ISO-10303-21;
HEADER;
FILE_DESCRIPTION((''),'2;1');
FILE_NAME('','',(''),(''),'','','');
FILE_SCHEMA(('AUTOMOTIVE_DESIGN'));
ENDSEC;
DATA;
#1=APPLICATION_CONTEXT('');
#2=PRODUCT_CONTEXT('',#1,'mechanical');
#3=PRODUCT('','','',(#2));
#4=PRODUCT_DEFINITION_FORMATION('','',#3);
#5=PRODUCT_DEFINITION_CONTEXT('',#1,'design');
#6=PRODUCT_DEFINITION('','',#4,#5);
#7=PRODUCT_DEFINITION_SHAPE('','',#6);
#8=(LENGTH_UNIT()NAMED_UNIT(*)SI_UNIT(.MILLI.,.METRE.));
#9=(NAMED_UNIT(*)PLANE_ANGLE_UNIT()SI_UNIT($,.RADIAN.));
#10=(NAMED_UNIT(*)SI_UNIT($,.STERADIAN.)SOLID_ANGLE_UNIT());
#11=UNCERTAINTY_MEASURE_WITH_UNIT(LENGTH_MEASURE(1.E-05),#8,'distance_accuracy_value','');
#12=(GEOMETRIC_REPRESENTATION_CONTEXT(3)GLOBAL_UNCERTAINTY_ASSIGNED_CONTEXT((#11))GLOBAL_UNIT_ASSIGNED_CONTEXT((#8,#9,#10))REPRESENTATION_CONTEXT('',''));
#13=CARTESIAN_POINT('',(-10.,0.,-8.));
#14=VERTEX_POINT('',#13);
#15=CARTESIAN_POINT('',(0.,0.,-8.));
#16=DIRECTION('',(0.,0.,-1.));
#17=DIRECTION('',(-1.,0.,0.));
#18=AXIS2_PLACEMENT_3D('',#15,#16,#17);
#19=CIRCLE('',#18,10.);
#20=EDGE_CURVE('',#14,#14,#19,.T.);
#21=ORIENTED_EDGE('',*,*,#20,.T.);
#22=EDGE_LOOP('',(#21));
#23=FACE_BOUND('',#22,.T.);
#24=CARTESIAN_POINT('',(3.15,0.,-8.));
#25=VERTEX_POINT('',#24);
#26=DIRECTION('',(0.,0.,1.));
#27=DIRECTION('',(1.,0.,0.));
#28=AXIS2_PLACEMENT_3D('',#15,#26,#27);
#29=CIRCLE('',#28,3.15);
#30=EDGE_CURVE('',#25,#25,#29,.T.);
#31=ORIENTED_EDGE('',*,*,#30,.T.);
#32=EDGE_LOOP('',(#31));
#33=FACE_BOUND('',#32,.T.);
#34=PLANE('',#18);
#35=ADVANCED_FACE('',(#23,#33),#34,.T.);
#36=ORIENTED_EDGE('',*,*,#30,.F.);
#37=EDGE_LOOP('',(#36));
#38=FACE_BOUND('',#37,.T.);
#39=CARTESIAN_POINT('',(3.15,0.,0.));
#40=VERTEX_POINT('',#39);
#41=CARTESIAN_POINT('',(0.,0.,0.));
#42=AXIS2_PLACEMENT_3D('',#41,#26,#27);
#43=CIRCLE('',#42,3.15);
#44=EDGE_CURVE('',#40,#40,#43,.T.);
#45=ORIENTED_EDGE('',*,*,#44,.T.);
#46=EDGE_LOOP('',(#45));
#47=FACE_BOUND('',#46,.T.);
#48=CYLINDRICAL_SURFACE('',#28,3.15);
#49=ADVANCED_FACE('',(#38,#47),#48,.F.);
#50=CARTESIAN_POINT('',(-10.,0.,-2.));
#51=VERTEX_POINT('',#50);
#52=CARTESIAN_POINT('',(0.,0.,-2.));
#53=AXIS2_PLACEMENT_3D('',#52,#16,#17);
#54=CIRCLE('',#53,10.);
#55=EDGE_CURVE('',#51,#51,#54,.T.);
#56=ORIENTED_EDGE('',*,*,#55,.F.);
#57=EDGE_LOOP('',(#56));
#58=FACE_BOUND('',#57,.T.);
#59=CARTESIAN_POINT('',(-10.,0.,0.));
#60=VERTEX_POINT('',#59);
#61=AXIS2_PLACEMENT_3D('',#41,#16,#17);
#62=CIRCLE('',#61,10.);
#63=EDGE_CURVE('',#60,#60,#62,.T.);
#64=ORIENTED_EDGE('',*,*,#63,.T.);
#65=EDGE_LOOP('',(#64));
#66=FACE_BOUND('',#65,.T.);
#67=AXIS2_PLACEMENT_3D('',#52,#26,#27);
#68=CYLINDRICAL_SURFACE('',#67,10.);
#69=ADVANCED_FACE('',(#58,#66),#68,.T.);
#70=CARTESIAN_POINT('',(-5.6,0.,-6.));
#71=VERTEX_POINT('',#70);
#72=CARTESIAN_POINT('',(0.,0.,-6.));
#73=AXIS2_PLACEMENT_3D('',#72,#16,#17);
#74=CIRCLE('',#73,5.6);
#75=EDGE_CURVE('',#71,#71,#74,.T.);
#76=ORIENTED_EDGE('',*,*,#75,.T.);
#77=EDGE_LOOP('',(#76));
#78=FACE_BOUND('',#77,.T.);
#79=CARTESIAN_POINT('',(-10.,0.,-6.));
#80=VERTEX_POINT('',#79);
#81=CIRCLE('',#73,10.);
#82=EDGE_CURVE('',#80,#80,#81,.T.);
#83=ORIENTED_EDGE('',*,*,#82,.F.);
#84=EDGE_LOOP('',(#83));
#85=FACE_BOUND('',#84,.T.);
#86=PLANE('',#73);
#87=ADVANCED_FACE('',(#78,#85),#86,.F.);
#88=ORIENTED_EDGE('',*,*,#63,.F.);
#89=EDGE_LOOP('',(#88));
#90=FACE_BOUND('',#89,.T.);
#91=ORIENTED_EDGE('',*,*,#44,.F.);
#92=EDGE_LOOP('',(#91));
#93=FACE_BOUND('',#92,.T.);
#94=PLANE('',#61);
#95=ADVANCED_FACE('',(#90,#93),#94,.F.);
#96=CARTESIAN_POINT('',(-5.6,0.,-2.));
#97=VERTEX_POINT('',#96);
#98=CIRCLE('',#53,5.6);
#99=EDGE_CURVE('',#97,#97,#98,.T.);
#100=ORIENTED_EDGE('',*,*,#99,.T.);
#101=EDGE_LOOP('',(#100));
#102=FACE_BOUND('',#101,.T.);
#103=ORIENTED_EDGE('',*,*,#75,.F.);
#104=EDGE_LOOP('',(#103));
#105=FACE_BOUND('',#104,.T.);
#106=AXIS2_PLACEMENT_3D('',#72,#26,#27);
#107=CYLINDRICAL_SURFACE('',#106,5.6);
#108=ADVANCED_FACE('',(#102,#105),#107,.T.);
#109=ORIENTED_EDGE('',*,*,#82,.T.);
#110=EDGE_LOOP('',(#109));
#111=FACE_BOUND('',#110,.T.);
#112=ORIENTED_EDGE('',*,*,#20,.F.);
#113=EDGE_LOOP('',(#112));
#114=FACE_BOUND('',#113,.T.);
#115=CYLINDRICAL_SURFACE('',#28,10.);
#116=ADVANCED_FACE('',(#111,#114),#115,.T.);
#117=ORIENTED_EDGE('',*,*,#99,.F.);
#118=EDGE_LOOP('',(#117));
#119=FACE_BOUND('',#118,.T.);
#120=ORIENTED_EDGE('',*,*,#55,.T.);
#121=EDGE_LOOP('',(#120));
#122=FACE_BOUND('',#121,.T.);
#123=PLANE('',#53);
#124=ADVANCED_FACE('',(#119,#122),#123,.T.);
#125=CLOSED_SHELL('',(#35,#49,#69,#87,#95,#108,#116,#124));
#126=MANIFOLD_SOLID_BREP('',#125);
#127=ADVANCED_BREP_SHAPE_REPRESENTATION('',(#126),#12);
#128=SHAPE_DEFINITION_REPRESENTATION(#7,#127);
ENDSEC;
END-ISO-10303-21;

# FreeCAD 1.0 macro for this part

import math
import FreeCAD as App
import Part
import Sketcher
from FreeCAD import Vector
Q = App.Units.Quantity

doc = App.newDocument("Part")
body = doc.addObject("PartDesign::Body", "Body")

# Sketch on XY plane
sketch1 = doc.addObject("Sketcher::SketchObject", "Sketch")
body.addObject(sketch1)
sketch1.AttachmentSupport = (doc.XY_Plane, [""])
sketch1.MapMode = "FlatFace"
sketch1.addGeometry(Part.LineSegment(Vector(-5, 0, 0), Vector(-5, -8, 0)), False)
sketch1.addGeometry(Part.LineSegment(Vector(-5, -8, 0), Vector(5, -8, 0)), False)
sketch1.addGeometry(Part.LineSegment(Vector(5, -8, 0), Vector(5, 0, 0)), False)
sketch1.addGeometry(Part.ArcOfCircle(Part.Circle(Vector(0, 0, 0), Vector(0, 0, 1), 5), math.radians(0), math.radians(180)), False)
sketch1.addGeometry(Part.LineSegment(Vector(3.5, -6.3, 0), Vector(-3.5, -6.3, 0)), False)
sketch1.addGeometry(Part.LineSegment(Vector(-3.5, -6.3, 0), Vector(-3.5, -2.3, 0)), False)
sketch1.addGeometry(Part.LineSegment(Vector(-3.5, -2.3, 0), Vector(-1.9, -2.3, 0)), False)
sketch1.addGeometry(Part.ArcOfCircle(Part.Circle(Vector(0, 0, 0), Vector(0, 0, 1), 3), math.radians(0), math.radians(230)), False)
sketch1.addGeometry(Part.ArcOfCircle(Part.Circle(Vector(0, 0, 0), Vector(0, 0, 1), 3), math.radians(-50), math.radians(0)), False)
sketch1.addGeometry(Part.LineSegment(Vector(1.9, -2.3, 0), Vector(3.5, -2.3, 0)), False)
sketch1.addGeometry(Part.LineSegment(Vector(3.5, -2.3, 0), Vector(3.5, -6.3, 0)), False)
sketch1.addConstraint(Sketcher.Constraint("Coincident", 0, 2, 1, 1))
sketch1.addConstraint(Sketcher.Constraint("Coincident", 1, 2, 2, 1))
sketch1.addConstraint(Sketcher.Constraint("Tangent", 2, 2, 3, 1))
sketch1.addConstraint(Sketcher.Constraint("Tangent", 3, 2, 0, 1))
sketch1.addConstraint(Sketcher.Constraint("Coincident", 4, 2, 5, 1))
sketch1.addConstraint(Sketcher.Constraint("Coincident", 5, 2, 6, 1))
sketch1.addConstraint(Sketcher.Constraint("Coincident", 6, 2, 7, 2))
sketch1.addConstraint(Sketcher.Constraint("Tangent", 7, 1, 8, 2))
sketch1.addConstraint(Sketcher.Constraint("Coincident", 8, 1, 9, 1))
sketch1.addConstraint(Sketcher.Constraint("Coincident", 9, 2, 10, 1))
sketch1.addConstraint(Sketcher.Constraint("Coincident", 10, 2, 4, 1))
sketch1.addConstraint(Sketcher.Constraint("Vertical", 0))
sketch1.addConstraint(Sketcher.Constraint("Horizontal", 1))
sketch1.addConstraint(Sketcher.Constraint("Vertical", 2))
sketch1.addConstraint(Sketcher.Constraint("Horizontal", 4))
sketch1.addConstraint(Sketcher.Constraint("Vertical", 5))
sketch1.addConstraint(Sketcher.Constraint("Horizontal", 6))
sketch1.addConstraint(Sketcher.Constraint("Horizontal", 9))
sketch1.addConstraint(Sketcher.Constraint("Vertical", 10))
sketch1.addConstraint(Sketcher.Constraint("Coincident", 3, 3, -1, 1))
sketch1.addConstraint(Sketcher.Constraint("Coincident", 7, 3, -1, 1))
sketch1.addConstraint(Sketcher.Constraint("Equal", 7, 8))
sketch1.addConstraint(Sketcher.Constraint("Symmetric", 5, 2, 9, 2, -2))
sketch1.addConstraint(Sketcher.Constraint("PointOnObject", 7, 1, -1))
sketch1.addConstraint(Sketcher.Constraint("Radius", 3, Q("5 mm")))
sketch1.addConstraint(Sketcher.Constraint("Radius", 7, Q("3 mm")))
sketch1.addConstraint(Sketcher.Constraint("DistanceX", 4, 2, 4, 1, Q("7 mm")))
sketch1.addConstraint(Sketcher.Constraint("DistanceY", 0, 2, 0, 1, Q("8 mm")))
sketch1.addConstraint(Sketcher.Constraint("DistanceY", 5, 1, 5, 2, Q("4 mm")))
sketch1.addConstraint(Sketcher.Constraint("DistanceY", 4, 2, -1, 1, Q("6.3 mm")))
pad1 = doc.addObject("PartDesign::Pad", "Pad")
body.addObject(pad1)
pad1.Profile = sketch1
pad1.Length = 7

# Sketch on XZ plane
sketch2 = doc.addObject("Sketcher::SketchObject", "Sketch001")
body.addObject(sketch2)
sketch2.AttachmentSupport = (doc.XZ_Plane, [""])
sketch2.MapMode = "FlatFace"
sketch2.AttachmentOffset = App.Placement(Vector(0, 0, 8), App.Rotation())
sketch2.addGeometry(Part.Circle(Vector(0, 4, 0), Vector(0, 0, 1), 1.4), False)
sketch2.addConstraint(Sketcher.Constraint("PointOnObject", 0, 3, -2))
sketch2.addConstraint(Sketcher.Constraint("Diameter", 0, Q("2.7 mm")))
sketch2.addConstraint(Sketcher.Constraint("DistanceY", -1, 1, 0, 3, Q("4 mm")))
pocket1 = doc.addObject("PartDesign::Pocket", "Pocket")
body.addObject(pocket1)
pocket1.Profile = sketch2
pocket1.Length = 1.7

# Sketch on XY plane
sketch3 = doc.addObject("Sketcher::SketchObject", "Sketch002")
body.addObject(sketch3)
sketch3.AttachmentSupport = (doc.XY_Plane, [""])
sketch3.MapMode = "FlatFace"
sketch3.addGeometry(Part.Circle(Vector(0, 0, 0), Vector(0, 0, 1), 10), False)
sketch3.addConstraint(Sketcher.Constraint("Coincident", 0, 3, -1, 1))
sketch3.addConstraint(Sketcher.Constraint("Diameter", 0, Q("20 mm")))
pad2 = doc.addObject("PartDesign::Pad", "Pad001")
body.addObject(pad2)
pad2.Profile = sketch3
pad2.Length = 2
pad2.Reversed = True

# Sketch on XY plane
sketch4 = doc.addObject("Sketcher::SketchObject", "Sketch003")
body.addObject(sketch4)
sketch4.AttachmentSupport = (doc.XY_Plane, [""])
sketch4.MapMode = "FlatFace"
sketch4.AttachmentOffset = App.Placement(Vector(0, 0, -2), App.Rotation())
sketch4.addGeometry(Part.Circle(Vector(0, 0, 0), Vector(0, 0, 1), 6), False)
sketch4.addConstraint(Sketcher.Constraint("Coincident", 0, 3, -1, 1))
sketch4.addConstraint(Sketcher.Constraint("Diameter", 0, Q("11.2 mm")))
pad3 = doc.addObject("PartDesign::Pad", "Pad002")
body.addObject(pad3)
pad3.Profile = sketch4
pad3.Length = 4
pad3.Reversed = True

# Sketch on XY plane
sketch5 = doc.addObject("Sketcher::SketchObject", "Sketch004")
body.addObject(sketch5)
sketch5.AttachmentSupport = (doc.XY_Plane, [""])
sketch5.MapMode = "FlatFace"
sketch5.AttachmentOffset = App.Placement(Vector(0, 0, -6), App.Rotation())
sketch5.addGeometry(Part.Circle(Vector(0, 0, 0), Vector(0, 0, 1), 10), False)
sketch5.addConstraint(Sketcher.Constraint("Coincident", 0, 3, -1, 1))
sketch5.addConstraint(Sketcher.Constraint("Diameter", 0, Q("20 mm")))
pad4 = doc.addObject("PartDesign::Pad", "Pad003")
body.addObject(pad4)
pad4.Profile = sketch5
pad4.Length = 2
pad4.Reversed = True

# Sketch on XY plane
sketch6 = doc.addObject("Sketcher::SketchObject", "Sketch005")
body.addObject(sketch6)
sketch6.AttachmentSupport = (doc.XY_Plane, [""])
sketch6.MapMode = "FlatFace"
sketch6.addGeometry(Part.Circle(Vector(0, 0, 0), Vector(0, 0, 1), 3.1), False)
sketch6.addConstraint(Sketcher.Constraint("Coincident", 0, 3, -1, 1))
sketch6.addConstraint(Sketcher.Constraint("Diameter", 0, Q("6.3 mm")))
pocket2 = doc.addObject("PartDesign::Pocket", "Pocket001")
body.addObject(pocket2)
pocket2.Profile = sketch6
pocket2.Type = "ThroughAll"

# Sketch on XY plane
sketch7 = doc.addObject("Sketcher::SketchObject", "Sketch006")
body.addObject(sketch7)
sketch7.AttachmentSupport = (doc.XY_Plane, [""])
sketch7.MapMode = "FlatFace"
sketch7.AttachmentOffset = App.Placement(Vector(0, 0, 7), App.Rotation())
sketch7.addGeometry(Part.Circle(Vector(0, 0, 0), Vector(0, 0, 1), 18), False)
sketch7.addConstraint(Sketcher.Constraint("Coincident", 0, 3, -1, 1))
sketch7.addConstraint(Sketcher.Constraint("Diameter", 0, Q("35.298517 mm")))
pocket3 = doc.addObject("PartDesign::Pocket", "Pocket002")
body.addObject(pocket3)
pocket3.Profile = sketch7
pocket3.Length = 7

doc.recompute()
